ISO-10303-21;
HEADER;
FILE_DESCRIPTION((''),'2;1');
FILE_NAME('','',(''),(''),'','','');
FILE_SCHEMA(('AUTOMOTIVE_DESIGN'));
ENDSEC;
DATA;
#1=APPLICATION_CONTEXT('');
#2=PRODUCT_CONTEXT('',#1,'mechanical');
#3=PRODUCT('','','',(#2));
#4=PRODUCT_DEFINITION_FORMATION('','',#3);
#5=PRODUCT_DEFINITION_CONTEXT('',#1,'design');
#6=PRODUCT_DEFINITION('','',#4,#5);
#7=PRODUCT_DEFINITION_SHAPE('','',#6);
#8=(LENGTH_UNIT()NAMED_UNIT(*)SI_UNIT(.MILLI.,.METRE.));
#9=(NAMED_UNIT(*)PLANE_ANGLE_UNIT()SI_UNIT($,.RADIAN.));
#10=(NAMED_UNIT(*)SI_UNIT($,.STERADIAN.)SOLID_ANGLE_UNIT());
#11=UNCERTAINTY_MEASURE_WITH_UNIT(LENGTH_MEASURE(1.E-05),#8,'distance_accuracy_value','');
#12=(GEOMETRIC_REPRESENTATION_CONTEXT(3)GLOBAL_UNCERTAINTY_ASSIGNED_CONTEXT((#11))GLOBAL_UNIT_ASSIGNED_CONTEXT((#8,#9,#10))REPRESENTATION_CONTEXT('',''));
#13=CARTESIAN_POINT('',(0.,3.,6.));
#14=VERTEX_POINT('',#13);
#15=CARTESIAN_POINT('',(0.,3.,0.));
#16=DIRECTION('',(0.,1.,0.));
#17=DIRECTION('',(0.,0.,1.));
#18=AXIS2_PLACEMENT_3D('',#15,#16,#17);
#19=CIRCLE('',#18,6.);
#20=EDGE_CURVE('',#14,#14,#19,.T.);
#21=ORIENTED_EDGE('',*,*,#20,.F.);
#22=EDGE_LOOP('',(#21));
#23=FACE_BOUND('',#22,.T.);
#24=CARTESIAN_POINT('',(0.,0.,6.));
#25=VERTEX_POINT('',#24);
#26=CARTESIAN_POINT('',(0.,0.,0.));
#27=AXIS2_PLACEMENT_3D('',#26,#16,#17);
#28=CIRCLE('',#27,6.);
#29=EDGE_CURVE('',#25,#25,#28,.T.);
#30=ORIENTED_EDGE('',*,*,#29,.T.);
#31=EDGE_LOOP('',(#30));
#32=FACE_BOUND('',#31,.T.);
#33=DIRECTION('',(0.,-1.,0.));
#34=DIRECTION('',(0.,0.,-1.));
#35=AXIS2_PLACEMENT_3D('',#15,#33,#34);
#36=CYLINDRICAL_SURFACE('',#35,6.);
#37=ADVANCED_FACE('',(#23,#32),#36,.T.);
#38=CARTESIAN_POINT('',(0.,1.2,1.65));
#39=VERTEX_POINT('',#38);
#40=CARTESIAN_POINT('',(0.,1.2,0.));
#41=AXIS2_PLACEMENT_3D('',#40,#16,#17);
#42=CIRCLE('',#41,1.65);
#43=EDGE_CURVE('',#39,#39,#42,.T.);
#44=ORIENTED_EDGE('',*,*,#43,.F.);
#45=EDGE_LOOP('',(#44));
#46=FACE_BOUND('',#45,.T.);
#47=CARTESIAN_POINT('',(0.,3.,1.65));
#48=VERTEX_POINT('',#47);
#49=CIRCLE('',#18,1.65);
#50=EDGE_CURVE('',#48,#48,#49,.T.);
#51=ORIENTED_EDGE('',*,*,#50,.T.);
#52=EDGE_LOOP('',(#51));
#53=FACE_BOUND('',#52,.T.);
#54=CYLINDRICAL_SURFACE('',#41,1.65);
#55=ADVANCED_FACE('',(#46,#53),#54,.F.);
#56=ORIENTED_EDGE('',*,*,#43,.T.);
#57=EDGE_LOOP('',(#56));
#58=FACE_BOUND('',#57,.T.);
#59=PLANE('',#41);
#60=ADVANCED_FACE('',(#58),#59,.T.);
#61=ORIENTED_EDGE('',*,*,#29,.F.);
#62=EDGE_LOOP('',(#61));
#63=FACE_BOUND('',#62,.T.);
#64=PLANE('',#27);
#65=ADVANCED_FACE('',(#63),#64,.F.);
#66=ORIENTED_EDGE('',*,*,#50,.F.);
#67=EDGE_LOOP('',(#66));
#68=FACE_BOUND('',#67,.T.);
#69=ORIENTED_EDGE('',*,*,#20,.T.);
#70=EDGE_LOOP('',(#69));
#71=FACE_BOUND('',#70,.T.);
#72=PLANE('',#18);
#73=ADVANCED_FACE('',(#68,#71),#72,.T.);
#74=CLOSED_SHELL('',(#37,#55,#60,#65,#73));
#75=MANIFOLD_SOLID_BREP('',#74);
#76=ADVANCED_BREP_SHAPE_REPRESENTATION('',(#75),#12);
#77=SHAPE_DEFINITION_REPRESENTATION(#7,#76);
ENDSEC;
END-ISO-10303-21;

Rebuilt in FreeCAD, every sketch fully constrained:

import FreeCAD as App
import Part
import Sketcher
from FreeCAD import Vector
Q = App.Units.Quantity

doc = App.newDocument("Part")
body = doc.addObject("PartDesign::Body", "Body")

# Sketch on XZ plane
sketch1 = doc.addObject("Sketcher::SketchObject", "Sketch")
body.addObject(sketch1)
sketch1.AttachmentSupport = (doc.XZ_Plane, [""])
sketch1.MapMode = "FlatFace"
sketch1.addGeometry(Part.Circle(Vector(0, 0, 0), Vector(0, 0, 1), 6), False)
sketch1.addConstraint([
    Sketcher.Constraint("Coincident", 0, 3, -1, 1),
    Sketcher.Constraint("Diameter", 0, Q("12 mm")),
])
pad1 = doc.addObject("PartDesign::Pad", "Pad")
body.addObject(pad1)
pad1.Profile = sketch1
pad1.Length = 3
pad1.Reversed = True

# Sketch on XZ plane
sketch2 = doc.addObject("Sketcher::SketchObject", "Sketch001")
body.addObject(sketch2)
sketch2.AttachmentSupport = (doc.XZ_Plane, [""])
sketch2.MapMode = "FlatFace"
sketch2.AttachmentOffset = App.Placement(Vector(0, 0, -3), App.Rotation())
sketch2.addGeometry(Part.Circle(Vector(0, 0, 0), Vector(0, 0, 1), 1.6), False)
sketch2.addConstraint([
    Sketcher.Constraint("Coincident", 0, 3, -1, 1),
    Sketcher.Constraint("Diameter", 0, Q("3.3 mm")),
])
pocket1 = doc.addObject("PartDesign::Pocket", "Pocket")
body.addObject(pocket1)
pocket1.Profile = sketch2
pocket1.Length = 1.8
pocket1.Reversed = True

doc.recompute()
